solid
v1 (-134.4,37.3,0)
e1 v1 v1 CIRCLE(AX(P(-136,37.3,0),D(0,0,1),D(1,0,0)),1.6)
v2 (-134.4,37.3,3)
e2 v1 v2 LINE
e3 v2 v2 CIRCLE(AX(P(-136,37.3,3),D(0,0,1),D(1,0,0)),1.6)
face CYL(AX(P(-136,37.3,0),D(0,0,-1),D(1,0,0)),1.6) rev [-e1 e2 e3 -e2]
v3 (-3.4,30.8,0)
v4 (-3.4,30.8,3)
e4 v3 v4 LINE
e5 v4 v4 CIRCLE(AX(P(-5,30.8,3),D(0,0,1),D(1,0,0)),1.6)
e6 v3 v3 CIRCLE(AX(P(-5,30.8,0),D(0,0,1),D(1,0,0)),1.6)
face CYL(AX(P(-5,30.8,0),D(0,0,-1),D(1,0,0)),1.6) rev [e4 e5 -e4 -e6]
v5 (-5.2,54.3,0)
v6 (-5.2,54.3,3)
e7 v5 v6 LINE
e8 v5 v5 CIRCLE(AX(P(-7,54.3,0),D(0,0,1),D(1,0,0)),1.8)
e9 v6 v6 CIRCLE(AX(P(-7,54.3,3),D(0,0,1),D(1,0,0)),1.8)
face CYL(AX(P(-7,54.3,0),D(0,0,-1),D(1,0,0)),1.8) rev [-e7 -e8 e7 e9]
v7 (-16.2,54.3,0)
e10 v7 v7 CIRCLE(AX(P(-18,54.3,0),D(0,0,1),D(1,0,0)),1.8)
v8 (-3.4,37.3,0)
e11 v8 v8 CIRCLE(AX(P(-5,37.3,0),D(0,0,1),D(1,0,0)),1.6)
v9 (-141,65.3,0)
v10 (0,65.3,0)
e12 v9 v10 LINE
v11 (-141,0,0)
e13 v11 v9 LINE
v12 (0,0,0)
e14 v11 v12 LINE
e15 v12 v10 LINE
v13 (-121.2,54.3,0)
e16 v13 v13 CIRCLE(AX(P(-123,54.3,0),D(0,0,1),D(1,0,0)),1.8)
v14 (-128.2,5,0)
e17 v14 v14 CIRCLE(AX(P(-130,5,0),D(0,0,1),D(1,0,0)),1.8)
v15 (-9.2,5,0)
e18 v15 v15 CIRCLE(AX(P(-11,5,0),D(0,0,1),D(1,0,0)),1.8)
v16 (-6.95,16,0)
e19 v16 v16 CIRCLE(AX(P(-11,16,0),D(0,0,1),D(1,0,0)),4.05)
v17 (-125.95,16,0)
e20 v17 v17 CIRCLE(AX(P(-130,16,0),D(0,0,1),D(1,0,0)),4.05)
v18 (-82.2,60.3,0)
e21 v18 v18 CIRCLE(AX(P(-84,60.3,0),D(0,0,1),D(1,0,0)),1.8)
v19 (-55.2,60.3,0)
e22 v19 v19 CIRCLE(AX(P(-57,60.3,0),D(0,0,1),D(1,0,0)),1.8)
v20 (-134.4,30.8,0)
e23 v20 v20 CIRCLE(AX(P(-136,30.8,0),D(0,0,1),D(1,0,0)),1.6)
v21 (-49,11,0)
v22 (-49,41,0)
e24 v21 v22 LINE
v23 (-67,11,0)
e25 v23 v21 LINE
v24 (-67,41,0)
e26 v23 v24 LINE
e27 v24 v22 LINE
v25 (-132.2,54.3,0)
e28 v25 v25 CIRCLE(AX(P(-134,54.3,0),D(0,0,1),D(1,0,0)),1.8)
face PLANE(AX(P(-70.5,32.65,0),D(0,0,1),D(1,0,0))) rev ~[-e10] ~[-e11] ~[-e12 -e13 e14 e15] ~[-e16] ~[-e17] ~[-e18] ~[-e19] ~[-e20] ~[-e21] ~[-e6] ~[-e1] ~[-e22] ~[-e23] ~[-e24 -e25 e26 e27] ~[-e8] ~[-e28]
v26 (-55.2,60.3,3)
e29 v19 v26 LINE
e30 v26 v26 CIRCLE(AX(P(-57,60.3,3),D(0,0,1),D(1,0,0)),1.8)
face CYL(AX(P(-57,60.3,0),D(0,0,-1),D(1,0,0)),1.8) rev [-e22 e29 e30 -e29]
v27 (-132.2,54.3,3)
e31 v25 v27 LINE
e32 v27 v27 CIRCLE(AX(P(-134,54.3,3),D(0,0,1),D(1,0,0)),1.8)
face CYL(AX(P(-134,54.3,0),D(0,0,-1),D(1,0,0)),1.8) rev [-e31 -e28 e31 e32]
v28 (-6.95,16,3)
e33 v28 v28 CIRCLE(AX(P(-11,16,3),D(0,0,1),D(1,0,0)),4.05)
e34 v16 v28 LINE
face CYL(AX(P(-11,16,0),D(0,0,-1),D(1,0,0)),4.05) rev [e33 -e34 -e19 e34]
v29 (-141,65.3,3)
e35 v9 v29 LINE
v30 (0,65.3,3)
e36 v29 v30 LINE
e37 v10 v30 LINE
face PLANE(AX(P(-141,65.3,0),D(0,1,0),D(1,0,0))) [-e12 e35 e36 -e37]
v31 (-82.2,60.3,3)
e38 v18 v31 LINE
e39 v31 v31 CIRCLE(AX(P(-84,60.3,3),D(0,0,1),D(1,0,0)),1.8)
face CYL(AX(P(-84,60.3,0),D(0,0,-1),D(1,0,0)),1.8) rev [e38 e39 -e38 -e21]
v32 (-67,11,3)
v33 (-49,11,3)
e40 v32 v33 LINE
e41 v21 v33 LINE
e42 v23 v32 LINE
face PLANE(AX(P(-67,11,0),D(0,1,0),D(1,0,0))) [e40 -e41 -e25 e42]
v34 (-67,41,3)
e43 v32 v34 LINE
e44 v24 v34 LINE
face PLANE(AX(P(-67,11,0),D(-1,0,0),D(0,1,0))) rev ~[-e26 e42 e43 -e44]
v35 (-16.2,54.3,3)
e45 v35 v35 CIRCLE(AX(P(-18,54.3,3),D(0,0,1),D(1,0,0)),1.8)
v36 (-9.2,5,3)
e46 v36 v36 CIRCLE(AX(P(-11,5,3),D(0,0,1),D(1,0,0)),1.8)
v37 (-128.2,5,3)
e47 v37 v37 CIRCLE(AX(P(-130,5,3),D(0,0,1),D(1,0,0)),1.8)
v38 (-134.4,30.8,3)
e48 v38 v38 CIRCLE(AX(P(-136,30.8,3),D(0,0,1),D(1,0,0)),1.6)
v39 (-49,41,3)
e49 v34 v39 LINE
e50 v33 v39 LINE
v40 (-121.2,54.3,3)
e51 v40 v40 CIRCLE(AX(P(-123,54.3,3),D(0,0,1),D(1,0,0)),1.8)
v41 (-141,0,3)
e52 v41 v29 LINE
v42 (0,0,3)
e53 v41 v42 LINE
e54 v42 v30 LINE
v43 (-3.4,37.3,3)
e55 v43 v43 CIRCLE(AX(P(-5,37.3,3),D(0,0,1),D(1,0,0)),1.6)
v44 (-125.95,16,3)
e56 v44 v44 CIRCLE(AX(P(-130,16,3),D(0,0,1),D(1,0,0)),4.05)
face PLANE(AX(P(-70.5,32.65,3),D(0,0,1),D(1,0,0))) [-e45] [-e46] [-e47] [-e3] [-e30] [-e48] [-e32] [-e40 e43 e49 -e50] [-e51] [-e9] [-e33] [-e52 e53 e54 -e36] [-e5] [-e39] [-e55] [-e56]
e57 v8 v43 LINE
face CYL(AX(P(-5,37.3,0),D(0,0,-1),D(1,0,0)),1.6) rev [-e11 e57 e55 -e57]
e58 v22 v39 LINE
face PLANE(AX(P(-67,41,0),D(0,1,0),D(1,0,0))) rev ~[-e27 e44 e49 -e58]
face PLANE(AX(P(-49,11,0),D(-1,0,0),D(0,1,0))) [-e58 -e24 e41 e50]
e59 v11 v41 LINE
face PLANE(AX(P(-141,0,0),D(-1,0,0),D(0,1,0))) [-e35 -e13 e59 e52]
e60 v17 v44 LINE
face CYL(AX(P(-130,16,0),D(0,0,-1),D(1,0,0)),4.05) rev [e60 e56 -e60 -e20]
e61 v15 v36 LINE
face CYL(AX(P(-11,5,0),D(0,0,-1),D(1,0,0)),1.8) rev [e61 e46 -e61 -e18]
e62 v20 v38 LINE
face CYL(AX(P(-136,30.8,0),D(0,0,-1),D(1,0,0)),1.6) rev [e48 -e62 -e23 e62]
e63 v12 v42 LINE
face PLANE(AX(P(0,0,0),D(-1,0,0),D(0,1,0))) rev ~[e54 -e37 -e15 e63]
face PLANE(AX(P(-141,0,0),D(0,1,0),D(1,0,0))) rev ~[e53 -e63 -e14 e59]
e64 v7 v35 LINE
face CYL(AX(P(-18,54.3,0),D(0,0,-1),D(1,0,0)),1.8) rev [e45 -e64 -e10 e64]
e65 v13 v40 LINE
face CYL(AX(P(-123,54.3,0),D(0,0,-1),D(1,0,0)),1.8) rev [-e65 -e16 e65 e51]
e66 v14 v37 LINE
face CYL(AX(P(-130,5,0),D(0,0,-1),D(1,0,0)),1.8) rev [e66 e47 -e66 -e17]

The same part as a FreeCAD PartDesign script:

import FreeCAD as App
import Part
import Sketcher

V = App.Vector


def add_polygon(sketch, points):
    """Adds a closed chain of lines whose ends are joined by coincident constraints."""
    first, n = sketch.GeometryCount, len(points)
    for a, b in zip(points, points[1:] + points[:1]):
        sketch.addGeometry(Part.LineSegment(App.Vector(*a, 0), App.Vector(*b, 0)), False)
    for i in range(n):
        sketch.addConstraint(Sketcher.Constraint("Coincident", first + i, 2, first + (i + 1) % n, 1))

doc = App.newDocument("Part")
body = doc.addObject("PartDesign::Body", "Body")

# Sketch on XY plane
sketch1 = body.newObject("Sketcher::SketchObject", "Sketch")
sketch1.AttachmentSupport = (doc.getObject("XY_Plane"), [""])
sketch1.MapMode = "FlatFace"
add_polygon(sketch1, [(-141, 65.3), (-141, 0), (0, 0), (0, 65.3)])  # lines 0-3
sketch1.addGeometry(Part.Circle(V(-130, 5, 0), V(0, 0, 1), 1.8), False)  # 4
sketch1.addGeometry(Part.Circle(V(-130, 16, 0), V(0, 0, 1), 4), False)  # 5
sketch1.addGeometry(Part.Circle(V(-136, 30.8, 0), V(0, 0, 1), 1.6), False)  # 6
sketch1.addGeometry(Part.Circle(V(-11, 5, 0), V(0, 0, 1), 1.8), False)  # 7
sketch1.addGeometry(Part.Circle(V(-11, 16, 0), V(0, 0, 1), 4), False)  # 8
add_polygon(sketch1, [(-49, 11), (-67, 11), (-67, 41), (-49, 41)])  # lines 9-12
sketch1.addGeometry(Part.Circle(V(-5, 30.8, 0), V(0, 0, 1), 1.6), False)  # 13
sketch1.addGeometry(Part.Circle(V(-136, 37.3, 0), V(0, 0, 1), 1.6), False)  # 14
sketch1.addGeometry(Part.Circle(V(-134, 54.3, 0), V(0, 0, 1), 1.8), False)  # 15
sketch1.addGeometry(Part.Circle(V(-123, 54.3, 0), V(0, 0, 1), 1.8), False)  # 16
sketch1.addGeometry(Part.Circle(V(-84, 60.3, 0), V(0, 0, 1), 1.8), False)  # 17
sketch1.addGeometry(Part.Circle(V(-5, 37.3, 0), V(0, 0, 1), 1.6), False)  # 18
sketch1.addGeometry(Part.Circle(V(-57, 60.3, 0), V(0, 0, 1), 1.8), False)  # 19
sketch1.addGeometry(Part.Circle(V(-18, 54.3, 0), V(0, 0, 1), 1.8), False)  # 20
sketch1.addGeometry(Part.Circle(V(-7, 54.3, 0), V(0, 0, 1), 1.8), False)  # 21
sketch1.addConstraint(Sketcher.Constraint("Vertical", 0))
sketch1.addConstraint(Sketcher.Constraint("Horizontal", 1))
sketch1.addConstraint(Sketcher.Constraint("Vertical", 2))
sketch1.addConstraint(Sketcher.Constraint("Horizontal", 3))
sketch1.addConstraint(Sketcher.Constraint("Horizontal", 9))
sketch1.addConstraint(Sketcher.Constraint("Vertical", 10))
sketch1.addConstraint(Sketcher.Constraint("Horizontal", 11))
sketch1.addConstraint(Sketcher.Constraint("Vertical", 12))
sketch1.addConstraint(Sketcher.Constraint("Coincident", 1, 2, -1, 1))
sketch1.addConstraint(Sketcher.Constraint("Equal", 4, 7))
sketch1.addConstraint(Sketcher.Constraint("Equal", 5, 8))
sketch1.addConstraint(Sketcher.Constraint("Equal", 6, 13))
sketch1.addConstraint(Sketcher.Constraint("Equal", 13, 14))
sketch1.addConstraint(Sketcher.Constraint("Equal", 7, 15))
sketch1.addConstraint(Sketcher.Constraint("Equal", 15, 16))
sketch1.addConstraint(Sketcher.Constraint("Equal", 16, 17))
sketch1.addConstraint(Sketcher.Constraint("Equal", 14, 18))
sketch1.addConstraint(Sketcher.Constraint("Equal", 17, 19))
sketch1.addConstraint(Sketcher.Constraint("Equal", 19, 20))
sketch1.addConstraint(Sketcher.Constraint("Equal", 20, 21))
sketch1.addConstraint(Sketcher.Constraint("Horizontal", 4, 3, 7, 3))
sketch1.addConstraint(Sketcher.Constraint("Horizontal", 5, 3, 8, 3))
sketch1.addConstraint(Sketcher.Constraint("Horizontal", 6, 3, 13, 3))
sketch1.addConstraint(Sketcher.Constraint("Horizontal", 15, 3, 16, 3))
sketch1.addConstraint(Sketcher.Constraint("Horizontal", 14, 3, 18, 3))
sketch1.addConstraint(Sketcher.Constraint("Horizontal", 17, 3, 19, 3))
sketch1.addConstraint(Sketcher.Constraint("Horizontal", 16, 3, 20, 3))
sketch1.addConstraint(Sketcher.Constraint("Horizontal", 20, 3, 21, 3))
sketch1.addConstraint(Sketcher.Constraint("Vertical", 4, 3, 5, 3))
sketch1.addConstraint(Sketcher.Constraint("Vertical", 7, 3, 8, 3))
sketch1.addConstraint(Sketcher.Constraint("Vertical", 6, 3, 14, 3))
sketch1.addConstraint(Sketcher.Constraint("Vertical", 13, 3, 18, 3))
sketch1.addConstraint(Sketcher.Constraint("Diameter", 4, 3.6))
sketch1.addConstraint(Sketcher.Constraint("Diameter", 5, 8.1))
sketch1.addConstraint(Sketcher.Constraint("Diameter", 6, 3.2))
sketch1.addConstraint(Sketcher.Constraint("DistanceX", 1, 1, 1, 2, 141.0))
sketch1.addConstraint(Sketcher.Constraint("DistanceX", 9, 2, 9, 1, 18.0))
sketch1.addConstraint(Sketcher.Constraint("DistanceY", 10, 1, 10, 2, 30.0))
sketch1.addConstraint(Sketcher.Constraint("DistanceY", 0, 2, 0, 1, 65.3))
sketch1.addConstraint(Sketcher.Constraint("DistanceX", 4, 3, -1, 1, 130.0))
sketch1.addConstraint(Sketcher.Constraint("DistanceY", -1, 1, 4, 3, 5.0))
sketch1.addConstraint(Sketcher.Constraint("DistanceY", -1, 1, 5, 3, 16.0))
sketch1.addConstraint(Sketcher.Constraint("DistanceX", 6, 3, -1, 1, 136.0))
sketch1.addConstraint(Sketcher.Constraint("DistanceX", 7, 3, -1, 1, 11.0))
sketch1.addConstraint(Sketcher.Constraint("DistanceX", 13, 3, -1, 1, 5.0))
sketch1.addConstraint(Sketcher.Constraint("DistanceX", 15, 3, -1, 1, 134.0))
sketch1.addConstraint(Sketcher.Constraint("DistanceX", 16, 3, -1, 1, 123.0))
sketch1.addConstraint(Sketcher.Constraint("DistanceX", 17, 3, -1, 1, 84.0))
sketch1.addConstraint(Sketcher.Constraint("DistanceX", 19, 3, -1, 1, 57.0))
sketch1.addConstraint(Sketcher.Constraint("DistanceX", 20, 3, -1, 1, 18.0))
sketch1.addConstraint(Sketcher.Constraint("DistanceX", 21, 3, -1, 1, 7.0))
sketch1.addConstraint(Sketcher.Constraint("DistanceX", 9, 2, -1, 1, 67.0))
sketch1.addConstraint(Sketcher.Constraint("DistanceY", -1, 1, 9, 2, 11.0))
sketch1.addConstraint(Sketcher.Constraint("DistanceY", 14, 3, 15, 3, 17.0))
sketch1.addConstraint(Sketcher.Constraint("DistanceY", 16, 3, 17, 3, 6.0))
sketch1.addConstraint(Sketcher.Constraint("DistanceY", 21, 3, 2, 2, 11.0))
sketch1.addConstraint(Sketcher.Constraint("DistanceY", -1, 1, 6, 3, 30.8))
pad1 = body.newObject("PartDesign::Pad", "Pad")
pad1.Profile = sketch1
pad1.Length = 3

doc.recompute()
